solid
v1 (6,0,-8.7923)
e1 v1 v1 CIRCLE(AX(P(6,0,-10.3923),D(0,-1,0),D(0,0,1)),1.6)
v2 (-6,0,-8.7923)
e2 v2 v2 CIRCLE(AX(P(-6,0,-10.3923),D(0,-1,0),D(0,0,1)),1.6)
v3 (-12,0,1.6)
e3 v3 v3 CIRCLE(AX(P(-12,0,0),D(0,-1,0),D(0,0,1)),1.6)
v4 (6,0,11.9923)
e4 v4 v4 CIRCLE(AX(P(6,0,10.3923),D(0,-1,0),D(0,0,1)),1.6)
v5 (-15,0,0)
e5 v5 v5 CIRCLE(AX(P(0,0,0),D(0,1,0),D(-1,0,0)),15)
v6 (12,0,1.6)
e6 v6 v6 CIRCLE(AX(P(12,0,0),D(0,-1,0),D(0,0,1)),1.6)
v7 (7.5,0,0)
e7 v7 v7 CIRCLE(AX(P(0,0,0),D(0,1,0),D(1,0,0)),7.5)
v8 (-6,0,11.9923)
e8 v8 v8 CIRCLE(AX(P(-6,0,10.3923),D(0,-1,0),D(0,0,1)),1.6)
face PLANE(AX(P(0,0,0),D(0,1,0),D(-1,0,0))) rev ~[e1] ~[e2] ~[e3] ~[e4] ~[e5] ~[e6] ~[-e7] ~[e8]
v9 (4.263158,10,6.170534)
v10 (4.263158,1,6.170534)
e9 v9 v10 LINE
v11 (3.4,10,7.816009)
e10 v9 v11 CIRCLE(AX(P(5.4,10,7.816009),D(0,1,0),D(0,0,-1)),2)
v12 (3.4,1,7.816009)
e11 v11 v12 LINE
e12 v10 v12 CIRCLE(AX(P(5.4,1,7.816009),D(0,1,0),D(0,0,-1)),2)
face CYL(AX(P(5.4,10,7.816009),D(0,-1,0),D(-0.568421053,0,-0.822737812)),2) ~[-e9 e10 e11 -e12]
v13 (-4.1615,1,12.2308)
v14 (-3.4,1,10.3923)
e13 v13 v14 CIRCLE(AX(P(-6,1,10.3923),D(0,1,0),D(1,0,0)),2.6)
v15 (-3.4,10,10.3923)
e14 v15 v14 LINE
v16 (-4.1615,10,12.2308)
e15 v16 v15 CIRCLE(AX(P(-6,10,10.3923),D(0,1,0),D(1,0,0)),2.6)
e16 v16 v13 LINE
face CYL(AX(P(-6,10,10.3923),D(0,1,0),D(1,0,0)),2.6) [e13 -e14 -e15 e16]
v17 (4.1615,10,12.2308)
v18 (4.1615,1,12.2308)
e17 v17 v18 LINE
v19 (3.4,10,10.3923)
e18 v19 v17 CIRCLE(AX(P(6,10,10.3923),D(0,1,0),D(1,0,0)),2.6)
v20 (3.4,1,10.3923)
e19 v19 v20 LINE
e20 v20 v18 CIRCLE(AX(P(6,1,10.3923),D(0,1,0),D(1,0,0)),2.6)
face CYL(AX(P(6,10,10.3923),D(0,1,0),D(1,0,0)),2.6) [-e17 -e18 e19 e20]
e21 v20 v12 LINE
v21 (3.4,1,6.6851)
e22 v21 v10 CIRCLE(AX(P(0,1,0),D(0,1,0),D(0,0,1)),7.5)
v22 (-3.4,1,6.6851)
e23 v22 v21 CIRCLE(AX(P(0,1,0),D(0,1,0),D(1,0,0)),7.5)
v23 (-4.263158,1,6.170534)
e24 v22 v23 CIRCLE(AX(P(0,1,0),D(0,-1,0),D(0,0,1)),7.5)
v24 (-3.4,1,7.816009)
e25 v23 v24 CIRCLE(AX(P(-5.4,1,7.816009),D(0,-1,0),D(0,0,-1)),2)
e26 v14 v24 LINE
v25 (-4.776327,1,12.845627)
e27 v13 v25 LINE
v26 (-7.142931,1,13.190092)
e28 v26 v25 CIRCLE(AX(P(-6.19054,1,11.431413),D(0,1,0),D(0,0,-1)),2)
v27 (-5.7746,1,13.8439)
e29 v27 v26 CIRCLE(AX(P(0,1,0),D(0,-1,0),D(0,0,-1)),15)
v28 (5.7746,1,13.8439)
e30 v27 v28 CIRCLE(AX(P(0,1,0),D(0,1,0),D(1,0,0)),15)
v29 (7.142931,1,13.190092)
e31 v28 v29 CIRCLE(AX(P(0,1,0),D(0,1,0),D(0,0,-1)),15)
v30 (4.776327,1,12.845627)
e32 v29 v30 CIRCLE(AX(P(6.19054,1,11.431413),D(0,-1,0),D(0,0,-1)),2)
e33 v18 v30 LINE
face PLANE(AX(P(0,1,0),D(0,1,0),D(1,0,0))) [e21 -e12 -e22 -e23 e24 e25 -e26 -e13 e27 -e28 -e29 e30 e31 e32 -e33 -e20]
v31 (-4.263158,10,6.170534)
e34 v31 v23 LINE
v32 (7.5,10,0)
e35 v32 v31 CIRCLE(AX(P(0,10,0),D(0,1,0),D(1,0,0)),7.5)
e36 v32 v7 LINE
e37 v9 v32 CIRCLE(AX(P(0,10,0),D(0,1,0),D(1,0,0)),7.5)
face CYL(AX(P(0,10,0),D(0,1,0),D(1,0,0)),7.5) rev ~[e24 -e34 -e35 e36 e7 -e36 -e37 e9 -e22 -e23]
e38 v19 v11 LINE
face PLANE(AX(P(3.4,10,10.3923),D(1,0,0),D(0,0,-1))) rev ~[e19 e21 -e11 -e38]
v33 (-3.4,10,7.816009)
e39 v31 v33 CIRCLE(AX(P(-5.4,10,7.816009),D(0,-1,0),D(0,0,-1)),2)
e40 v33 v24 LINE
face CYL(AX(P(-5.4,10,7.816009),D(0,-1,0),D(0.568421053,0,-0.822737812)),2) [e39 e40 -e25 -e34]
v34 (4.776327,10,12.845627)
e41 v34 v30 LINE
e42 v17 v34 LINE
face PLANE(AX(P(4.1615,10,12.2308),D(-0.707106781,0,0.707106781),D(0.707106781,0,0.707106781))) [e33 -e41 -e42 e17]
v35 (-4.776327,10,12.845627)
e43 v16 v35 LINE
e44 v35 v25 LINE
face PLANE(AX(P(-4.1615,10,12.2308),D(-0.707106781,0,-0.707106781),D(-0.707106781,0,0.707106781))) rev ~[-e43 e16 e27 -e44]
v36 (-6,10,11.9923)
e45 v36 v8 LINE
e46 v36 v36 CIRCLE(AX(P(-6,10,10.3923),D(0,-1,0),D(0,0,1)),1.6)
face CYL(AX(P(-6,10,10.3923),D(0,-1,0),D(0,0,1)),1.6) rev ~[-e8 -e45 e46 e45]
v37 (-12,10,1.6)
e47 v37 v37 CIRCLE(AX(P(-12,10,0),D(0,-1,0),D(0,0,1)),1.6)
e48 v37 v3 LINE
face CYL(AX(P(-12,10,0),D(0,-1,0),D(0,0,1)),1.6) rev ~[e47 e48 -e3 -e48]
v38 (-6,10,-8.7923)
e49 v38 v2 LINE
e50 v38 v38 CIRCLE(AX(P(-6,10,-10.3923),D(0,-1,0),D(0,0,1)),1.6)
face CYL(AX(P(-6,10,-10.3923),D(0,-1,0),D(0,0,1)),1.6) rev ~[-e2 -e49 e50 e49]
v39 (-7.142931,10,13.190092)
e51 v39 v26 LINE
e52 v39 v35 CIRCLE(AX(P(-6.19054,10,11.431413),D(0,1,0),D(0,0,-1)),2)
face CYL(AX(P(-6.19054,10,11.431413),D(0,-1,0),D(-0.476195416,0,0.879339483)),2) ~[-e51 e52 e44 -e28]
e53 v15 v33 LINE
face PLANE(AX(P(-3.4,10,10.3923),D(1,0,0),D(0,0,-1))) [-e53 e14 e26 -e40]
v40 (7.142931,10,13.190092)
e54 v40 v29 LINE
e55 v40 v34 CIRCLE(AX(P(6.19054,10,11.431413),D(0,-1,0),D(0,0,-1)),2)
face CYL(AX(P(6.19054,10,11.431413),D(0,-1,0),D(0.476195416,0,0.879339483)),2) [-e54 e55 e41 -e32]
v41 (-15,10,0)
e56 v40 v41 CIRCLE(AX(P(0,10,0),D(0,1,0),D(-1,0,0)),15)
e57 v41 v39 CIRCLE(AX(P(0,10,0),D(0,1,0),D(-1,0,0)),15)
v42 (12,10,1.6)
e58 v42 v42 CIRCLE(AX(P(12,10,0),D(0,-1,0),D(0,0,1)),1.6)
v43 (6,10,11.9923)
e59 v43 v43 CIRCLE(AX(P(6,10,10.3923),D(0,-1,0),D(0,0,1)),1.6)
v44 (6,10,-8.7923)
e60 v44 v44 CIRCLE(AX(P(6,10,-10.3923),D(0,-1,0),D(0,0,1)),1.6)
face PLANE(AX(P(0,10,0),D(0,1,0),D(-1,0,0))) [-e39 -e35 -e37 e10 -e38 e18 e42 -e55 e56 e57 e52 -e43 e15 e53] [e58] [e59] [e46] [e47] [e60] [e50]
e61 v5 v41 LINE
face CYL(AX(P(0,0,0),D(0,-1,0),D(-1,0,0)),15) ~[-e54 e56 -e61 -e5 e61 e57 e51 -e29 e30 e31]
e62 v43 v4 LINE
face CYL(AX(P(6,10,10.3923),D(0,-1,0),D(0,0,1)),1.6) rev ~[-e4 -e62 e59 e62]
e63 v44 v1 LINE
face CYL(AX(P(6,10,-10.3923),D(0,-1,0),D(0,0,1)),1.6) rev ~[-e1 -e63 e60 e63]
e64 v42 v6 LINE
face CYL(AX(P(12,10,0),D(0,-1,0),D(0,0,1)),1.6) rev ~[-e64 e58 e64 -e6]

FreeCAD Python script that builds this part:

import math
import FreeCAD as App
import Part
import Sketcher
from FreeCAD import Vector


def edges_at(feature, points):
    """Names of the edges that pass closest to the given points."""
    edges = feature.Shape.Edges
    near = lambda p: min(range(len(edges)), key=lambda i: edges[i].distToShape(Part.Vertex(*p))[0])
    return sorted({f"Edge{near(p) + 1}" for p in points})

doc = App.newDocument("Part")
params = doc.addObject("Spreadsheet::Sheet", "Params")
for row, (alias, value) in enumerate([
    ("sketch1_diameter", "30 mm"),
    ("pad1_length", "10 mm"),
    ("sketch2_diameter", "3.2 mm"),
    ("hole_diameter", "3.2 mm"),
    ("sketch3_diameter", "15 mm"),
    ("pocket1_length", "10 mm"),
    ("sketch4_radius", "15 mm"),
    ("sketch4_radius2", "2.6 mm"),
    ("sketch4_radius3", "7.5 mm"),
    ("pocket2_length", "9 mm"),
    ("fillet_radius", "2 mm"),
], start=1):
    params.set(f"A{row}", alias)
    params.set(f"B{row}", "=" + value)
    params.setAlias(f"B{row}", alias)

body = doc.addObject("PartDesign::Body", "Body")

# Sketch on XZ plane
sketch1 = doc.addObject("Sketcher::SketchObject", "Sketch")
body.addObject(sketch1)
sketch1.AttachmentSupport = (doc.XZ_Plane, [""])
sketch1.MapMode = "FlatFace"
sketch1.addGeometry(Part.Circle(Vector(0, 0, 0), Vector(0, 0, 1), 15), False)
sketch1.addConstraint([
    Sketcher.Constraint("Coincident", 0, 3, -1, 1),
    Sketcher.Constraint("Diameter", 0, 30.0),
])
sketch1.setExpression("Constraints[1]", "Params.sketch1_diameter")
pad1 = doc.addObject("PartDesign::Pad", "Pad")
body.addObject(pad1)
pad1.Profile = sketch1
pad1.setExpression("Length", "Params.pad1_length")
pad1.Reversed = True

# Sketch on XZ plane
sketch2 = doc.addObject("Sketcher::SketchObject", "Sketch001")
body.addObject(sketch2)
sketch2.AttachmentSupport = (doc.XZ_Plane, [""])
sketch2.MapMode = "FlatFace"
sketch2.AttachmentOffset = App.Placement(Vector(0, 0, -10), App.Rotation())
sketch2.addGeometry([
    Part.Circle(Vector(-12, 0, 0), Vector(0, 0, 1), 1.6),  # 0
    Part.Circle(Vector(-6, 10.3923, 0), Vector(0, 0, 1), 1.6),  # 1
    Part.Circle(Vector(6, 10.3923, 0), Vector(0, 0, 1), 1.6),  # 2
    Part.Circle(Vector(12, 0, 0), Vector(0, 0, 1), 1.6),  # 3
    Part.Circle(Vector(6, -10.3923, 0), Vector(0, 0, 1), 1.6),  # 4
    Part.Circle(Vector(-6, -10.3923, 0), Vector(0, 0, 1), 1.6),  # 5
], False)
sketch2.addConstraint([
    Sketcher.Constraint("Equal", 0, 1),
    Sketcher.Constraint("Equal", 1, 2),
    Sketcher.Constraint("Equal", 2, 3),
    Sketcher.Constraint("Equal", 3, 4),
    Sketcher.Constraint("Equal", 4, 5),
    Sketcher.Constraint("Symmetric", 0, 3, 3, 3, -1, 1),
    Sketcher.Constraint("Symmetric", 1, 3, 4, 3, -1, 1),
    Sketcher.Constraint("Symmetric", 2, 3, 5, 3, -1, 1),
    Sketcher.Constraint("Symmetric", 1, 3, 2, 3, -2),
    Sketcher.Constraint("PointOnObject", 0, 3, -1),
    Sketcher.Constraint("Diameter", 0, 3.2),
    Sketcher.Constraint("DistanceX", 0, 3, -1, 1, 12.0),
    Sketcher.Constraint("DistanceX", 1, 3, -1, 1, 6.0),
    Sketcher.Constraint("DistanceY", -1, 1, 1, 3, 10.3923),
])
sketch2.setExpression("Constraints[10]", "Params.sketch2_diameter")
doc.recompute()
hole = doc.addObject("PartDesign::Hole", "Hole")
body.addObject(hole)
hole.Profile = sketch2
hole.ThreadType = "None"
hole.setExpression("Diameter", "Params.hole_diameter")
hole.DepthType = "ThroughAll"
hole.Reversed = True

# Sketch on XZ plane
sketch3 = doc.addObject("Sketcher::SketchObject", "Sketch002")
body.addObject(sketch3)
sketch3.AttachmentSupport = (doc.XZ_Plane, [""])
sketch3.MapMode = "FlatFace"
sketch3.AttachmentOffset = App.Placement(Vector(0, 0, -10), App.Rotation())
sketch3.addGeometry(Part.Circle(Vector(0, 0, 0), Vector(0, 0, 1), 7.5), False)
sketch3.addConstraint([
    Sketcher.Constraint("Coincident", 0, 3, -1, 1),
    Sketcher.Constraint("Diameter", 0, 15.0),
])
sketch3.setExpression("Constraints[1]", "Params.sketch3_diameter")
pocket1 = doc.addObject("PartDesign::Pocket", "Pocket")
body.addObject(pocket1)
pocket1.Profile = sketch3
pocket1.setExpression("Length", "Params.pocket1_length")
pocket1.Reversed = True

# Sketch on XZ plane
sketch4 = doc.addObject("Sketcher::SketchObject", "Sketch003")
body.addObject(sketch4)
sketch4.AttachmentSupport = (doc.XZ_Plane, [""])
sketch4.MapMode = "FlatFace"
sketch4.AttachmentOffset = App.Placement(Vector(0, 0, -10), App.Rotation())
sketch4.addGeometry([
    Part.LineSegment(Vector(-3.4, 6.6851, 0), Vector(-3.4, 10.3923, 0)),  # 0
    Part.ArcOfCircle(Part.Circle(Vector(-6, 10.3923, 0), Vector(0, 0, 1), 2.6), math.radians(0), math.radians(45)),  # 1
    Part.LineSegment(Vector(-4.1615, 12.2308, 0), Vector(-5.7746, 13.8439, 0)),  # 2
    Part.ArcOfCircle(Part.Circle(Vector(0, 0, 0), Vector(0, 0, 1), 15), math.radians(67.357893), math.radians(112.642107)),  # 3
    Part.LineSegment(Vector(5.7746, 13.8439, 0), Vector(4.1615, 12.2308, 0)),  # 4
    Part.ArcOfCircle(Part.Circle(Vector(6, 10.3923, 0), Vector(0, 0, 1), 2.6), math.radians(135), math.radians(180)),  # 5
    Part.LineSegment(Vector(3.4, 10.3923, 0), Vector(3.4, 6.6851, 0)),  # 6
    Part.ArcOfCircle(Part.Circle(Vector(0, 0, 0), Vector(0, 0, 1), 7.5), math.radians(63.042396), math.radians(116.957604)),  # 7
], False)
sketch4.addConstraint([
    Sketcher.Constraint("Tangent", 0, 2, 1, 1),
    Sketcher.Constraint("Tangent", 1, 2, 2, 1),
    Sketcher.Constraint("Coincident", 2, 2, 3, 2),
    Sketcher.Constraint("Coincident", 3, 1, 4, 1),
    Sketcher.Constraint("Tangent", 4, 2, 5, 1),
    Sketcher.Constraint("Tangent", 5, 2, 6, 1),
    Sketcher.Constraint("Coincident", 6, 2, 7, 1),
    Sketcher.Constraint("Coincident", 7, 2, 0, 1),
    Sketcher.Constraint("Vertical", 0),
    Sketcher.Constraint("Vertical", 6),
    Sketcher.Constraint("Coincident", 3, 3, -1, 1),
    Sketcher.Constraint("Coincident", 7, 3, -1, 1),
    Sketcher.Constraint("Equal", 1, 5),
    Sketcher.Constraint("Symmetric", 1, 3, 5, 3, -2),
    Sketcher.Constraint("Perpendicular", 2, 4),
    Sketcher.Constraint("Horizontal", 2, 2, 3, 1),
    Sketcher.Constraint("Radius", 3, 15.0),
    Sketcher.Constraint("Radius", 1, 2.6),
    Sketcher.Constraint("Radius", 7, 7.5),
    Sketcher.Constraint("DistanceX", 1, 3, -1, 1, 6.0),
    Sketcher.Constraint("DistanceY", 0, 1, 0, 2, 3.7072),
])
sketch4.setExpression("Constraints[16]", "Params.sketch4_radius")
sketch4.setExpression("Constraints[17]", "Params.sketch4_radius2")
sketch4.setExpression("Constraints[18]", "Params.sketch4_radius3")
pocket2 = doc.addObject("PartDesign::Pocket", "Pocket001")
body.addObject(pocket2)
pocket2.Profile = sketch4
pocket2.setExpression("Length", "Params.pocket2_length")
pocket2.Reversed = True
doc.recompute()

fillet = doc.addObject("PartDesign::Fillet", "Fillet")
body.addObject(fillet)
fillet.Base = (pocket2, edges_at(pocket2, [
    (-3.4, 5.5, 6.685),
    (3.4, 5.5, 6.685),
    (-5.775, 5.5, 13.844),
    (5.775, 5.5, 13.844),
]))
fillet.setExpression("Radius", "Params.fillet_radius")

doc.recompute()
